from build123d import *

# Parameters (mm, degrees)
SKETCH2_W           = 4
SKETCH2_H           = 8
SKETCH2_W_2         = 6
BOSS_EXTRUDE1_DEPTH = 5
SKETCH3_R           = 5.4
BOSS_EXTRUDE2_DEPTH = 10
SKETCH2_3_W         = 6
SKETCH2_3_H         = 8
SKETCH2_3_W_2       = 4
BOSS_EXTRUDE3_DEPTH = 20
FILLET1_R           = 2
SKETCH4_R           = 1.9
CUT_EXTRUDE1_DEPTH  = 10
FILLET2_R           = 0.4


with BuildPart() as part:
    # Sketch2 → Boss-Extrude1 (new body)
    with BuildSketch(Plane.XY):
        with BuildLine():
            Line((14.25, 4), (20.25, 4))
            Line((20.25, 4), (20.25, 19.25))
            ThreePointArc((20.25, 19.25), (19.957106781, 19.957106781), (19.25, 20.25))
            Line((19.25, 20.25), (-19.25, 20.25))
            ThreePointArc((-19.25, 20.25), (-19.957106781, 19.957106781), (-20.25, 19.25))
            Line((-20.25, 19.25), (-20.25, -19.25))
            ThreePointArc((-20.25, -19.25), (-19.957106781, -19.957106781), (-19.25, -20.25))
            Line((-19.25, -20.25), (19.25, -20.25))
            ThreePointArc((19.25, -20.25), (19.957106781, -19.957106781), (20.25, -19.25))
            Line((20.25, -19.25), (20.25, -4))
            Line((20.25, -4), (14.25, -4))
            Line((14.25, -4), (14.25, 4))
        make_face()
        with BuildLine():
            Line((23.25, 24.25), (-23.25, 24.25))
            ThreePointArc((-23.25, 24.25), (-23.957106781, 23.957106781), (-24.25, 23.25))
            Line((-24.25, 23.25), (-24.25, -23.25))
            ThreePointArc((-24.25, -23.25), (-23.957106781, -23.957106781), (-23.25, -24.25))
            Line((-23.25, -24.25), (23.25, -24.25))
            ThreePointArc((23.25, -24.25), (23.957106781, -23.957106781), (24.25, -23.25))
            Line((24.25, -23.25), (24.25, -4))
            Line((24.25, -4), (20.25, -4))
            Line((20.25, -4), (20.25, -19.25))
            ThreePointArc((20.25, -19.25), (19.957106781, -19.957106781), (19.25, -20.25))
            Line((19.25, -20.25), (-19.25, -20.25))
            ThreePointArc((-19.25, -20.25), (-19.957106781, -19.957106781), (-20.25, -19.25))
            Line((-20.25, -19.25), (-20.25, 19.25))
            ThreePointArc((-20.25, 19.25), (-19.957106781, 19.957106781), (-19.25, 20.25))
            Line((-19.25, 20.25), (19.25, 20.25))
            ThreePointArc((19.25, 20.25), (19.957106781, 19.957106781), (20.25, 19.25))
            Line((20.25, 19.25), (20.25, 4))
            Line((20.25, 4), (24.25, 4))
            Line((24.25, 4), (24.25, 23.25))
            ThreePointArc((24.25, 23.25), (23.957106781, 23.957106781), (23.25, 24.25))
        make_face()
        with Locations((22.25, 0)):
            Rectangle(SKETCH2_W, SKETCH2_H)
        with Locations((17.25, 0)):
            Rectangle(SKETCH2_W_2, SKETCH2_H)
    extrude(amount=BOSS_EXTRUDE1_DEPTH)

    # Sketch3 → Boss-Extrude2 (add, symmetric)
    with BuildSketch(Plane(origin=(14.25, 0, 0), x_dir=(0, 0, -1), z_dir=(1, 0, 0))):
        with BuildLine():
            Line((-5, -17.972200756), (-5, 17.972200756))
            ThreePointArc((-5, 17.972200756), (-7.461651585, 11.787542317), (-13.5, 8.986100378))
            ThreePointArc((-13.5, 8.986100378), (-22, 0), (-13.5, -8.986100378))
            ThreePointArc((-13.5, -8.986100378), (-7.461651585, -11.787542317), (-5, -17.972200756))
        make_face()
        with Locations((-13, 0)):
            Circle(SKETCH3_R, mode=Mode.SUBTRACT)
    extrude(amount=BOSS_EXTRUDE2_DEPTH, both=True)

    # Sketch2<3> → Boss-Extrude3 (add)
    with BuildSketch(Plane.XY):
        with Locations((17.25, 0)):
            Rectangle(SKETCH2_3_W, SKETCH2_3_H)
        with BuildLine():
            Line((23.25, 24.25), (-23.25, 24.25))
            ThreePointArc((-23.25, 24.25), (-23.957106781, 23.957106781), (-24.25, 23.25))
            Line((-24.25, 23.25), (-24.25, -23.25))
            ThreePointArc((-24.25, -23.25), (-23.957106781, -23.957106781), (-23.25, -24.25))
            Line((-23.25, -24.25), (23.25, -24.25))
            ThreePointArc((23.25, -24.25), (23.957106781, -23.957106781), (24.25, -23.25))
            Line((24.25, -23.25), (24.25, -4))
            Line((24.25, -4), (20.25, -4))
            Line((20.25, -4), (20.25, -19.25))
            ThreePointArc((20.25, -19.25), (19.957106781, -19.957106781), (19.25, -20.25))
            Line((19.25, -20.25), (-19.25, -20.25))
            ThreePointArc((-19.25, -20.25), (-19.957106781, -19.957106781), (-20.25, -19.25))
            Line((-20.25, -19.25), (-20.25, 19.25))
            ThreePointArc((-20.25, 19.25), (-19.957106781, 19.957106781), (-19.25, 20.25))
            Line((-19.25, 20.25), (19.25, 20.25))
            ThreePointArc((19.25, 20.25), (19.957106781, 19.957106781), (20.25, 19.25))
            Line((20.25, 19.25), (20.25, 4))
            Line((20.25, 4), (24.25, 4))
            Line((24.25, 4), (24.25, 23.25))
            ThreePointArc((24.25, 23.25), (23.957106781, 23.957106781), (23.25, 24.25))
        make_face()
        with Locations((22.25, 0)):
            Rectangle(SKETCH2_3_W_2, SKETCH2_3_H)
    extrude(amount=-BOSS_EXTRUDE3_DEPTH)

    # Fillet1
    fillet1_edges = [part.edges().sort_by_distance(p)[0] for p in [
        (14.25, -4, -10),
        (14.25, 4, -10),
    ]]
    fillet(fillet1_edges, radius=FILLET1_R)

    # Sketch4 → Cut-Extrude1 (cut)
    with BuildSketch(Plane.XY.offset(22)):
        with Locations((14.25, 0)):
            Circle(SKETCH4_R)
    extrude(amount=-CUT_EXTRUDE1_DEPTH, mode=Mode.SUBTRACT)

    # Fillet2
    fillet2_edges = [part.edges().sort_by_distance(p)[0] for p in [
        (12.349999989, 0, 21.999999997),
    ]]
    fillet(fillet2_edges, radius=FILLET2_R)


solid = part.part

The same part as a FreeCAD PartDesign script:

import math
import FreeCAD as App
import Part
import Sketcher
from FreeCAD import Vector
Q = App.Units.Quantity


def edges_at(feature, points):
    """Names of the edges that pass closest to the given points."""
    edges = feature.Shape.Edges
    near = lambda p: min(range(len(edges)), key=lambda i: edges[i].distToShape(Part.Vertex(*p))[0])
    return sorted({f"Edge{near(p) + 1}" for p in points})

doc = App.newDocument("Part")
body = doc.addObject("PartDesign::Body", "Body")

sketch1 = body.newObject("Sketcher::SketchObject", "Sketch")
sketch1.AttachmentSupport = (doc.getObject("XY_Plane"), [""])
sketch1.MapMode = "FlatFace"
sketch1.addGeometry(Part.ArcOfCircle(Part.Circle(Vector(23.25, 23.25, 0), Vector(0, 0, 1), 1), math.radians(0), math.radians(90)), False)
sketch1.addGeometry(Part.LineSegment(Vector(23.25, 24.25, 0), Vector(-23.25, 24.25, 0)), False)
sketch1.addGeometry(Part.ArcOfCircle(Part.Circle(Vector(-23.25, 23.25, 0), Vector(0, 0, 1), 1), math.radians(90), math.radians(180)), False)
sketch1.addGeometry(Part.LineSegment(Vector(-24.25, 23.25, 0), Vector(-24.25, -23.25, 0)), False)
sketch1.addGeometry(Part.ArcOfCircle(Part.Circle(Vector(-23.25, -23.25, 0), Vector(0, 0, 1), 1), math.radians(-180), math.radians(-90)), False)
sketch1.addGeometry(Part.LineSegment(Vector(-23.25, -24.25, 0), Vector(23.25, -24.25, 0)), False)
sketch1.addGeometry(Part.ArcOfCircle(Part.Circle(Vector(23.25, -23.25, 0), Vector(0, 0, 1), 1), math.radians(-90), math.radians(0)), False)
sketch1.addGeometry(Part.LineSegment(Vector(24.25, -23.25, 0), Vector(24.25, 23.25, 0)), False)
sketch1.addConstraint(Sketcher.Constraint("Tangent", 0, 2, 1, 1))
sketch1.addConstraint(Sketcher.Constraint("Tangent", 1, 2, 2, 1))
sketch1.addConstraint(Sketcher.Constraint("Tangent", 2, 2, 3, 1))
sketch1.addConstraint(Sketcher.Constraint("Tangent", 3, 2, 4, 1))
sketch1.addConstraint(Sketcher.Constraint("Tangent", 4, 2, 5, 1))
sketch1.addConstraint(Sketcher.Constraint("Tangent", 5, 2, 6, 1))
sketch1.addConstraint(Sketcher.Constraint("Tangent", 6, 2, 7, 1))
sketch1.addConstraint(Sketcher.Constraint("Tangent", 7, 2, 0, 1))
sketch1.addConstraint(Sketcher.Constraint("Horizontal", 1))
sketch1.addConstraint(Sketcher.Constraint("Vertical", 3))
sketch1.addConstraint(Sketcher.Constraint("Horizontal", 5))
sketch1.addConstraint(Sketcher.Constraint("Vertical", 7))
sketch1.addConstraint(Sketcher.Constraint("Equal", 0, 2))
sketch1.addConstraint(Sketcher.Constraint("Equal", 2, 4))
sketch1.addConstraint(Sketcher.Constraint("Equal", 4, 6))
sketch1.addConstraint(Sketcher.Constraint("Symmetric", 0, 3, 4, 3, -1, 1))
sketch1.addConstraint(Sketcher.Constraint("Equal", 5, 3))
sketch1.addConstraint(Sketcher.Constraint("Radius", 0, Q("1 mm")))
sketch1.addConstraint(Sketcher.Constraint("DistanceX", 1, 2, 1, 1, Q("46.5 mm")))
pad1 = body.newObject("PartDesign::Pad", "Pad")
pad1.Profile = sketch1
pad1.Length = 5

sketch2 = body.newObject("Sketcher::SketchObject", "Sketch001")
sketch2.AttachmentSupport = (doc.getObject("YZ_Plane"), [""])
sketch2.MapMode = "FlatFace"
sketch2.AttachmentOffset = App.Placement(Vector(0, 0, 14.25), App.Rotation())
sketch2.addGeometry(Part.LineSegment(Vector(-17.972201, 5, 0), Vector(17.972201, 5, 0)), False)
sketch2.addGeometry(Part.ArcOfCircle(Part.Circle(Vector(17.972201, 14, 0), Vector(0, 0, 1), 9), math.radians(-176.815261), math.radians(-90)), False)
sketch2.addGeometry(Part.ArcOfCircle(Part.Circle(Vector(0, 13, 0), Vector(0, 0, 1), 9), math.radians(3.184739), math.radians(176.815261)), False)
sketch2.addGeometry(Part.ArcOfCircle(Part.Circle(Vector(-17.972201, 14, 0), Vector(0, 0, 1), 9), math.radians(-90), math.radians(-3.184739)), False)
sketch2.addGeometry(Part.Circle(Vector(0, 13, 0), Vector(0, 0, 1), 5.4), False)
sketch2.addConstraint(Sketcher.Constraint("Tangent", 0, 2, 1, 2))
sketch2.addConstraint(Sketcher.Constraint("Tangent", 1, 1, 2, 1))
sketch2.addConstraint(Sketcher.Constraint("Tangent", 2, 2, 3, 2))
sketch2.addConstraint(Sketcher.Constraint("Tangent", 3, 1, 0, 1))
sketch2.addConstraint(Sketcher.Constraint("Horizontal", 0))
sketch2.addConstraint(Sketcher.Constraint("Coincident", 4, 3, 2, 3))
sketch2.addConstraint(Sketcher.Constraint("Equal", 1, 2))
sketch2.addConstraint(Sketcher.Constraint("Equal", 2, 3))
sketch2.addConstraint(Sketcher.Constraint("PointOnObject", 2, 3, -2))
sketch2.addConstraint(Sketcher.Constraint("Radius", 1, Q("9 mm")))
sketch2.addConstraint(Sketcher.Constraint("Diameter", 4, Q("10.8 mm")))
sketch2.addConstraint(Sketcher.Constraint("DistanceY", -1, 1, 1, 3, Q("14 mm")))
sketch2.addConstraint(Sketcher.Constraint("DistanceY", -1, 1, 2, 3, Q("13 mm")))
pad2 = body.newObject("PartDesign::Pad", "Pad001")
pad2.Profile = sketch2
pad2.Length = 20
pad2.Midplane = True

sketch3 = body.newObject("Sketcher::SketchObject", "Sketch002")
sketch3.AttachmentSupport = (doc.getObject("XY_Plane"), [""])
sketch3.MapMode = "FlatFace"
sketch3.addGeometry(Part.ArcOfCircle(Part.Circle(Vector(23.25, 23.25, 0), Vector(0, 0, 1), 1), math.radians(0), math.radians(90)), False)
sketch3.addGeometry(Part.LineSegment(Vector(23.25, 24.25, 0), Vector(-23.25, 24.25, 0)), False)
sketch3.addGeometry(Part.ArcOfCircle(Part.Circle(Vector(-23.25, 23.25, 0), Vector(0, 0, 1), 1), math.radians(90), math.radians(180)), False)
sketch3.addGeometry(Part.LineSegment(Vector(-24.25, 23.25, 0), Vector(-24.25, -23.25, 0)), False)
sketch3.addGeometry(Part.ArcOfCircle(Part.Circle(Vector(-23.25, -23.25, 0), Vector(0, 0, 1), 1), math.radians(-180), math.radians(-90)), False)
sketch3.addGeometry(Part.LineSegment(Vector(-23.25, -24.25, 0), Vector(23.25, -24.25, 0)), False)
sketch3.addGeometry(Part.ArcOfCircle(Part.Circle(Vector(23.25, -23.25, 0), Vector(0, 0, 1), 1), math.radians(-90), math.radians(0)), False)
sketch3.addGeometry(Part.LineSegment(Vector(24.25, -23.25, 0), Vector(24.25, 23.25, 0)), False)
sketch3.addGeometry(Part.LineSegment(Vector(14.25, 4, 0), Vector(14.25, -4, 0)), False)
sketch3.addGeometry(Part.LineSegment(Vector(14.25, -4, 0), Vector(20.25, -4, 0)), False)
sketch3.addGeometry(Part.LineSegment(Vector(20.25, -4, 0), Vector(20.25, -19.25, 0)), False)
sketch3.addGeometry(Part.ArcOfCircle(Part.Circle(Vector(19.25, -19.25, 0), Vector(0, 0, 1), 1), math.radians(-90), math.radians(0)), False)
sketch3.addGeometry(Part.LineSegment(Vector(19.25, -20.25, 0), Vector(-19.25, -20.25, 0)), False)
sketch3.addGeometry(Part.ArcOfCircle(Part.Circle(Vector(-19.25, -19.25, 0), Vector(0, 0, 1), 1), math.radians(-180), math.radians(-90)), False)
sketch3.addGeometry(Part.LineSegment(Vector(-20.25, -19.25, 0), Vector(-20.25, 19.25, 0)), False)
sketch3.addGeometry(Part.ArcOfCircle(Part.Circle(Vector(-19.25, 19.25, 0), Vector(0, 0, 1), 1), math.radians(90), math.radians(180)), False)
sketch3.addGeometry(Part.LineSegment(Vector(-19.25, 20.25, 0), Vector(19.25, 20.25, 0)), False)
sketch3.addGeometry(Part.ArcOfCircle(Part.Circle(Vector(19.25, 19.25, 0), Vector(0, 0, 1), 1), math.radians(0), math.radians(90)), False)
sketch3.addGeometry(Part.LineSegment(Vector(20.25, 19.25, 0), Vector(20.25, 4, 0)), False)
sketch3.addGeometry(Part.LineSegment(Vector(20.25, 4, 0), Vector(14.25, 4, 0)), False)
sketch3.addConstraint(Sketcher.Constraint("Tangent", 0, 2, 1, 1))
sketch3.addConstraint(Sketcher.Constraint("Tangent", 1, 2, 2, 1))
sketch3.addConstraint(Sketcher.Constraint("Tangent", 2, 2, 3, 1))
sketch3.addConstraint(Sketcher.Constraint("Tangent", 3, 2, 4, 1))
sketch3.addConstraint(Sketcher.Constraint("Tangent", 4, 2, 5, 1))
sketch3.addConstraint(Sketcher.Constraint("Tangent", 5, 2, 6, 1))
sketch3.addConstraint(Sketcher.Constraint("Tangent", 6, 2, 7, 1))
sketch3.addConstraint(Sketcher.Constraint("Tangent", 7, 2, 0, 1))
sketch3.addConstraint(Sketcher.Constraint("Coincident", 8, 2, 9, 1))
sketch3.addConstraint(Sketcher.Constraint("Coincident", 9, 2, 10, 1))
sketch3.addConstraint(Sketcher.Constraint("Tangent", 10, 2, 11, 2))
sketch3.addConstraint(Sketcher.Constraint("Tangent", 11, 1, 12, 1))
sketch3.addConstraint(Sketcher.Constraint("Tangent", 12, 2, 13, 2))
sketch3.addConstraint(Sketcher.Constraint("Tangent", 13, 1, 14, 1))
sketch3.addConstraint(Sketcher.Constraint("Tangent", 14, 2, 15, 2))
sketch3.addConstraint(Sketcher.Constraint("Tangent", 15, 1, 16, 1))
sketch3.addConstraint(Sketcher.Constraint("Tangent", 16, 2, 17, 2))
sketch3.addConstraint(Sketcher.Constraint("Tangent", 17, 1, 18, 1))
sketch3.addConstraint(Sketcher.Constraint("Coincident", 18, 2, 19, 1))
sketch3.addConstraint(Sketcher.Constraint("Coincident", 19, 2, 8, 1))
sketch3.addConstraint(Sketcher.Constraint("Horizontal", 1))
sketch3.addConstraint(Sketcher.Constraint("Vertical", 3))
sketch3.addConstraint(Sketcher.Constraint("Horizontal", 5))
sketch3.addConstraint(Sketcher.Constraint("Vertical", 7))
sketch3.addConstraint(Sketcher.Constraint("Vertical", 8))
sketch3.addConstraint(Sketcher.Constraint("Horizontal", 9))
sketch3.addConstraint(Sketcher.Constraint("Vertical", 10))
sketch3.addConstraint(Sketcher.Constraint("Horizontal", 12))
sketch3.addConstraint(Sketcher.Constraint("Vertical", 14))
sketch3.addConstraint(Sketcher.Constraint("Horizontal", 16))
sketch3.addConstraint(Sketcher.Constraint("Vertical", 18))
sketch3.addConstraint(Sketcher.Constraint("Horizontal", 19))
sketch3.addConstraint(Sketcher.Constraint("Equal", 0, 2))
sketch3.addConstraint(Sketcher.Constraint("Equal", 2, 4))
sketch3.addConstraint(Sketcher.Constraint("Equal", 4, 6))
sketch3.addConstraint(Sketcher.Constraint("Equal", 6, 11))
sketch3.addConstraint(Sketcher.Constraint("Equal", 11, 13))
sketch3.addConstraint(Sketcher.Constraint("Equal", 13, 15))
sketch3.addConstraint(Sketcher.Constraint("Equal", 15, 17))
sketch3.addConstraint(Sketcher.Constraint("Symmetric", 0, 3, 4, 3, -1, 1))
sketch3.addConstraint(Sketcher.Constraint("Symmetric", 11, 3, 15, 3, -1, 1))
sketch3.addConstraint(Sketcher.Constraint("Symmetric", 9, 2, 18, 2, -1))
sketch3.addConstraint(Sketcher.Constraint("Equal", 5, 3))
sketch3.addConstraint(Sketcher.Constraint("Equal", 16, 14))
sketch3.addConstraint(Sketcher.Constraint("Radius", 0, Q("1 mm")))
sketch3.addConstraint(Sketcher.Constraint("DistanceX", 9, 1, 9, 2, Q("6 mm")))
sketch3.addConstraint(Sketcher.Constraint("DistanceY", 8, 2, 8, 1, Q("8 mm")))
sketch3.addConstraint(Sketcher.Constraint("DistanceX", 1, 2, 1, 1, Q("46.5 mm")))
sketch3.addConstraint(Sketcher.Constraint("DistanceX", 12, 2, 12, 1, Q("38.5 mm")))
pad3 = body.newObject("PartDesign::Pad", "Pad002")
pad3.Profile = sketch3
pad3.Length = 20
pad3.Reversed = True
doc.recompute()

fillet = body.newObject("PartDesign::Fillet", "Fillet")
fillet.Base = (pad3, edges_at(pad3, [(14.25, -4, -10), (14.25, 4, -10)]))
fillet.Radius = 2

sketch4 = body.newObject("Sketcher::SketchObject", "Sketch003")
sketch4.AttachmentSupport = (doc.getObject("XY_Plane"), [""])
sketch4.MapMode = "FlatFace"
sketch4.AttachmentOffset = App.Placement(Vector(0, 0, 22), App.Rotation())
sketch4.addGeometry(Part.Circle(Vector(14.25, 0, 0), Vector(0, 0, 1), 1.9), False)
sketch4.addConstraint(Sketcher.Constraint("PointOnObject", 0, 3, -1))
sketch4.addConstraint(Sketcher.Constraint("Diameter", 0, Q("3.8 mm")))
sketch4.addConstraint(Sketcher.Constraint("DistanceX", -1, 1, 0, 3, Q("14.25 mm")))
pocket1 = body.newObject("PartDesign::Pocket", "Pocket")
pocket1.Profile = sketch4
pocket1.Length = 10
doc.recompute()

fillet2 = body.newObject("PartDesign::Fillet", "Fillet001")
fillet2.Base = (pocket1, edges_at(pocket1, [(12.35, 0, 22)]))
fillet2.Radius = 0.4

doc.recompute()
